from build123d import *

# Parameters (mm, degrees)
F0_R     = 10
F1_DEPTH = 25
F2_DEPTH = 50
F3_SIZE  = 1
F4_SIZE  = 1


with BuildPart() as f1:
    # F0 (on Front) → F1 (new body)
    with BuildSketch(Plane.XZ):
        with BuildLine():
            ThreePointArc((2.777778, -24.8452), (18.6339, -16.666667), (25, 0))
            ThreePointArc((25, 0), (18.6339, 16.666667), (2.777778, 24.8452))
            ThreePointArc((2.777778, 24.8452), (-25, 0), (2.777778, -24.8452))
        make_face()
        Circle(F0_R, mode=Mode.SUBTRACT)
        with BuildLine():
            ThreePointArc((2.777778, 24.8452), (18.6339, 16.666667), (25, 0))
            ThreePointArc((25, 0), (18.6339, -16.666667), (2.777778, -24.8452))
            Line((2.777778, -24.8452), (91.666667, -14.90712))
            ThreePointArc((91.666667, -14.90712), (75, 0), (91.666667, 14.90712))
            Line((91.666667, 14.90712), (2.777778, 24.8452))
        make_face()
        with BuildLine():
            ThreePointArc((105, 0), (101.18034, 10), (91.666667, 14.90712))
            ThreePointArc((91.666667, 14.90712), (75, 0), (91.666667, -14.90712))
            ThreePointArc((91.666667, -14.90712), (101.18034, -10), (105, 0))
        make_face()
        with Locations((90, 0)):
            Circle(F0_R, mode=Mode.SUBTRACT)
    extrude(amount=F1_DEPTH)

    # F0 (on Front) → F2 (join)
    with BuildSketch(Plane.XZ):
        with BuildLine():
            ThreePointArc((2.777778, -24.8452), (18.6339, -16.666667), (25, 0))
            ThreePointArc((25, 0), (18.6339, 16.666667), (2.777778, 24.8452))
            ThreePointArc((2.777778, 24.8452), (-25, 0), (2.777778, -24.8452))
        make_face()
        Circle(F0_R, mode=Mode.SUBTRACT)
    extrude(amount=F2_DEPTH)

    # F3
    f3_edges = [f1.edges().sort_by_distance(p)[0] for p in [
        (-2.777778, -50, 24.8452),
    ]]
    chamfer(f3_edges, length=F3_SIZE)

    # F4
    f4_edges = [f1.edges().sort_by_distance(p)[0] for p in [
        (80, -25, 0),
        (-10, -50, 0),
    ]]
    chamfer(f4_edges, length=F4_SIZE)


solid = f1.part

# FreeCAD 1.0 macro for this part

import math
import FreeCAD as App
import Part
import Sketcher

V = App.Vector


def edges_at(feature, points):
    """Names of the edges that pass closest to the given points."""
    edges = feature.Shape.Edges
    near = lambda p: min(range(len(edges)), key=lambda i: edges[i].distToShape(Part.Vertex(*p))[0])
    return sorted({f"Edge{near(p) + 1}" for p in points})

doc = App.newDocument("Part")
params = doc.addObject("Spreadsheet::Sheet", "Params")
for row, (alias, value) in enumerate([
    ("sketch1_diameter", "20 mm"),
    ("sketch1_radius", "25 mm"),
    ("sketch1_radius2", "15 mm"),
    ("pad1_length", "25 mm"),
    ("sketch2_diameter", "20 mm"),
    ("sketch2_radius", "24.999999 mm"),
    ("pad2_length", "50 mm"),
    ("chamfer_size", "1 mm"),
    ("chamfer2_size", "1 mm"),
], start=1):
    params.set(f"A{row}", alias)
    params.set(f"B{row}", "=" + value)
    params.setAlias(f"B{row}", alias)

body = doc.addObject("PartDesign::Body", "Body")

# Sketch on XZ plane
sketch1 = body.newObject("Sketcher::SketchObject", "Sketch")
sketch1.AttachmentSupport = (doc.getObject("XZ_Plane"), [""])
sketch1.MapMode = "FlatFace"
sketch1.addGeometry(Part.ArcOfCircle(Part.Circle(V(0, 0, 0), V(0, 0, 1), 25), math.radians(83.62063), math.radians(276.37937)), False)
sketch1.addGeometry(Part.LineSegment(V(2.777778, -24.8452, 0), V(91.666667, -14.90712, 0)), False)
sketch1.addGeometry(Part.ArcOfCircle(Part.Circle(V(90, 0, 0), V(0, 0, 1), 15), math.radians(-83.620628), math.radians(0)), False)
sketch1.addGeometry(Part.ArcOfCircle(Part.Circle(V(90, 0, 0), V(0, 0, 1), 15), math.radians(0), math.radians(83.620628)), False)
sketch1.addGeometry(Part.LineSegment(V(91.666667, 14.90712, 0), V(2.777778, 24.8452, 0)), False)
sketch1.addGeometry(Part.Circle(V(0, 0, 0), V(0, 0, 1), 10), False)
sketch1.addGeometry(Part.Circle(V(90, 0, 0), V(0, 0, 1), 10), False)
sketch1.addConstraint(Sketcher.Constraint("Tangent", 0, 2, 1, 1))
sketch1.addConstraint(Sketcher.Constraint("Tangent", 1, 2, 2, 1))
sketch1.addConstraint(Sketcher.Constraint("Tangent", 2, 2, 3, 1))
sketch1.addConstraint(Sketcher.Constraint("Tangent", 3, 2, 4, 1))
sketch1.addConstraint(Sketcher.Constraint("Tangent", 4, 2, 0, 1))
sketch1.addConstraint(Sketcher.Constraint("Coincident", 0, 3, -1, 1))
sketch1.addConstraint(Sketcher.Constraint("Coincident", 5, 3, -1, 1))
sketch1.addConstraint(Sketcher.Constraint("Coincident", 6, 3, 2, 3))
sketch1.addConstraint(Sketcher.Constraint("Equal", 2, 3))
sketch1.addConstraint(Sketcher.Constraint("Equal", 5, 6))
sketch1.addConstraint(Sketcher.Constraint("PointOnObject", 2, 3, -1))
sketch1.addConstraint(Sketcher.Constraint("PointOnObject", 2, 2, -1))
sketch1.addConstraint(Sketcher.Constraint("Diameter", 5, 20.0))
sketch1.addConstraint(Sketcher.Constraint("Radius", 0, 25.0))
sketch1.addConstraint(Sketcher.Constraint("Radius", 2, 15.0))
sketch1.addConstraint(Sketcher.Constraint("DistanceX", -1, 1, 2, 3, 90.0))
sketch1.setExpression("Constraints[12]", "Params.sketch1_diameter")
sketch1.setExpression("Constraints[13]", "Params.sketch1_radius")
sketch1.setExpression("Constraints[14]", "Params.sketch1_radius2")
pad1 = body.newObject("PartDesign::Pad", "Pad")
pad1.Profile = sketch1
pad1.setExpression("Length", "Params.pad1_length")

# Sketch on XZ plane
sketch2 = body.newObject("Sketcher::SketchObject", "Sketch001")
sketch2.AttachmentSupport = (doc.getObject("XZ_Plane"), [""])
sketch2.MapMode = "FlatFace"
sketch2.addGeometry(Part.ArcOfCircle(Part.Circle(V(0.000001, -0.000001, 0), V(0, 0, 1), 24.999999), math.radians(-83.62063), math.radians(0.000002)), False)
sketch2.addGeometry(Part.ArcOfCircle(Part.Circle(V(0.000001, 0.000001, 0), V(0, 0, 1), 24.999999), math.radians(-0.000002), math.radians(83.62063)), False)
sketch2.addGeometry(Part.ArcOfCircle(Part.Circle(V(0, 0, 0), V(0, 0, 1), 25), math.radians(83.62063), math.radians(276.37937)), False)
sketch2.addGeometry(Part.Circle(V(0, 0, 0), V(0, 0, 1), 10), False)
sketch2.addConstraint(Sketcher.Constraint("Tangent", 0, 2, 1, 1))
sketch2.addConstraint(Sketcher.Constraint("Tangent", 1, 2, 2, 1))
sketch2.addConstraint(Sketcher.Constraint("Tangent", 2, 2, 0, 1))
sketch2.addConstraint(Sketcher.Constraint("Coincident", 0, 3, -1, 1))
sketch2.addConstraint(Sketcher.Constraint("Coincident", 3, 3, -1, 1))
sketch2.addConstraint(Sketcher.Constraint("PointOnObject", 0, 2, -1))
sketch2.addConstraint(Sketcher.Constraint("Vertical", 1, 2, 2, 2))
sketch2.addConstraint(Sketcher.Constraint("Diameter", 3, 20.0))
sketch2.addConstraint(Sketcher.Constraint("Radius", 0, 24.999999))
sketch2.addConstraint(Sketcher.Constraint("DistanceY", -1, 1, 1, 2, 24.8452))
sketch2.setExpression("Constraints[7]", "Params.sketch2_diameter")
sketch2.setExpression("Constraints[8]", "Params.sketch2_radius")
pad2 = body.newObject("PartDesign::Pad", "Pad001")
pad2.Profile = sketch2
pad2.setExpression("Length", "Params.pad2_length")
doc.recompute()

chamfer = body.newObject("PartDesign::Chamfer", "Chamfer")
chamfer.Base = (pad2, edges_at(pad2, [(-25, -50, 0)]))
chamfer.setExpression("Size", "Params.chamfer_size")
doc.recompute()

chamfer2 = body.newObject("PartDesign::Chamfer", "Chamfer001")
chamfer2.Base = (chamfer, edges_at(chamfer, [(80, -25, 0), (-10, -50, 0)]))
chamfer2.setExpression("Size", "Params.chamfer2_size")

doc.recompute()
